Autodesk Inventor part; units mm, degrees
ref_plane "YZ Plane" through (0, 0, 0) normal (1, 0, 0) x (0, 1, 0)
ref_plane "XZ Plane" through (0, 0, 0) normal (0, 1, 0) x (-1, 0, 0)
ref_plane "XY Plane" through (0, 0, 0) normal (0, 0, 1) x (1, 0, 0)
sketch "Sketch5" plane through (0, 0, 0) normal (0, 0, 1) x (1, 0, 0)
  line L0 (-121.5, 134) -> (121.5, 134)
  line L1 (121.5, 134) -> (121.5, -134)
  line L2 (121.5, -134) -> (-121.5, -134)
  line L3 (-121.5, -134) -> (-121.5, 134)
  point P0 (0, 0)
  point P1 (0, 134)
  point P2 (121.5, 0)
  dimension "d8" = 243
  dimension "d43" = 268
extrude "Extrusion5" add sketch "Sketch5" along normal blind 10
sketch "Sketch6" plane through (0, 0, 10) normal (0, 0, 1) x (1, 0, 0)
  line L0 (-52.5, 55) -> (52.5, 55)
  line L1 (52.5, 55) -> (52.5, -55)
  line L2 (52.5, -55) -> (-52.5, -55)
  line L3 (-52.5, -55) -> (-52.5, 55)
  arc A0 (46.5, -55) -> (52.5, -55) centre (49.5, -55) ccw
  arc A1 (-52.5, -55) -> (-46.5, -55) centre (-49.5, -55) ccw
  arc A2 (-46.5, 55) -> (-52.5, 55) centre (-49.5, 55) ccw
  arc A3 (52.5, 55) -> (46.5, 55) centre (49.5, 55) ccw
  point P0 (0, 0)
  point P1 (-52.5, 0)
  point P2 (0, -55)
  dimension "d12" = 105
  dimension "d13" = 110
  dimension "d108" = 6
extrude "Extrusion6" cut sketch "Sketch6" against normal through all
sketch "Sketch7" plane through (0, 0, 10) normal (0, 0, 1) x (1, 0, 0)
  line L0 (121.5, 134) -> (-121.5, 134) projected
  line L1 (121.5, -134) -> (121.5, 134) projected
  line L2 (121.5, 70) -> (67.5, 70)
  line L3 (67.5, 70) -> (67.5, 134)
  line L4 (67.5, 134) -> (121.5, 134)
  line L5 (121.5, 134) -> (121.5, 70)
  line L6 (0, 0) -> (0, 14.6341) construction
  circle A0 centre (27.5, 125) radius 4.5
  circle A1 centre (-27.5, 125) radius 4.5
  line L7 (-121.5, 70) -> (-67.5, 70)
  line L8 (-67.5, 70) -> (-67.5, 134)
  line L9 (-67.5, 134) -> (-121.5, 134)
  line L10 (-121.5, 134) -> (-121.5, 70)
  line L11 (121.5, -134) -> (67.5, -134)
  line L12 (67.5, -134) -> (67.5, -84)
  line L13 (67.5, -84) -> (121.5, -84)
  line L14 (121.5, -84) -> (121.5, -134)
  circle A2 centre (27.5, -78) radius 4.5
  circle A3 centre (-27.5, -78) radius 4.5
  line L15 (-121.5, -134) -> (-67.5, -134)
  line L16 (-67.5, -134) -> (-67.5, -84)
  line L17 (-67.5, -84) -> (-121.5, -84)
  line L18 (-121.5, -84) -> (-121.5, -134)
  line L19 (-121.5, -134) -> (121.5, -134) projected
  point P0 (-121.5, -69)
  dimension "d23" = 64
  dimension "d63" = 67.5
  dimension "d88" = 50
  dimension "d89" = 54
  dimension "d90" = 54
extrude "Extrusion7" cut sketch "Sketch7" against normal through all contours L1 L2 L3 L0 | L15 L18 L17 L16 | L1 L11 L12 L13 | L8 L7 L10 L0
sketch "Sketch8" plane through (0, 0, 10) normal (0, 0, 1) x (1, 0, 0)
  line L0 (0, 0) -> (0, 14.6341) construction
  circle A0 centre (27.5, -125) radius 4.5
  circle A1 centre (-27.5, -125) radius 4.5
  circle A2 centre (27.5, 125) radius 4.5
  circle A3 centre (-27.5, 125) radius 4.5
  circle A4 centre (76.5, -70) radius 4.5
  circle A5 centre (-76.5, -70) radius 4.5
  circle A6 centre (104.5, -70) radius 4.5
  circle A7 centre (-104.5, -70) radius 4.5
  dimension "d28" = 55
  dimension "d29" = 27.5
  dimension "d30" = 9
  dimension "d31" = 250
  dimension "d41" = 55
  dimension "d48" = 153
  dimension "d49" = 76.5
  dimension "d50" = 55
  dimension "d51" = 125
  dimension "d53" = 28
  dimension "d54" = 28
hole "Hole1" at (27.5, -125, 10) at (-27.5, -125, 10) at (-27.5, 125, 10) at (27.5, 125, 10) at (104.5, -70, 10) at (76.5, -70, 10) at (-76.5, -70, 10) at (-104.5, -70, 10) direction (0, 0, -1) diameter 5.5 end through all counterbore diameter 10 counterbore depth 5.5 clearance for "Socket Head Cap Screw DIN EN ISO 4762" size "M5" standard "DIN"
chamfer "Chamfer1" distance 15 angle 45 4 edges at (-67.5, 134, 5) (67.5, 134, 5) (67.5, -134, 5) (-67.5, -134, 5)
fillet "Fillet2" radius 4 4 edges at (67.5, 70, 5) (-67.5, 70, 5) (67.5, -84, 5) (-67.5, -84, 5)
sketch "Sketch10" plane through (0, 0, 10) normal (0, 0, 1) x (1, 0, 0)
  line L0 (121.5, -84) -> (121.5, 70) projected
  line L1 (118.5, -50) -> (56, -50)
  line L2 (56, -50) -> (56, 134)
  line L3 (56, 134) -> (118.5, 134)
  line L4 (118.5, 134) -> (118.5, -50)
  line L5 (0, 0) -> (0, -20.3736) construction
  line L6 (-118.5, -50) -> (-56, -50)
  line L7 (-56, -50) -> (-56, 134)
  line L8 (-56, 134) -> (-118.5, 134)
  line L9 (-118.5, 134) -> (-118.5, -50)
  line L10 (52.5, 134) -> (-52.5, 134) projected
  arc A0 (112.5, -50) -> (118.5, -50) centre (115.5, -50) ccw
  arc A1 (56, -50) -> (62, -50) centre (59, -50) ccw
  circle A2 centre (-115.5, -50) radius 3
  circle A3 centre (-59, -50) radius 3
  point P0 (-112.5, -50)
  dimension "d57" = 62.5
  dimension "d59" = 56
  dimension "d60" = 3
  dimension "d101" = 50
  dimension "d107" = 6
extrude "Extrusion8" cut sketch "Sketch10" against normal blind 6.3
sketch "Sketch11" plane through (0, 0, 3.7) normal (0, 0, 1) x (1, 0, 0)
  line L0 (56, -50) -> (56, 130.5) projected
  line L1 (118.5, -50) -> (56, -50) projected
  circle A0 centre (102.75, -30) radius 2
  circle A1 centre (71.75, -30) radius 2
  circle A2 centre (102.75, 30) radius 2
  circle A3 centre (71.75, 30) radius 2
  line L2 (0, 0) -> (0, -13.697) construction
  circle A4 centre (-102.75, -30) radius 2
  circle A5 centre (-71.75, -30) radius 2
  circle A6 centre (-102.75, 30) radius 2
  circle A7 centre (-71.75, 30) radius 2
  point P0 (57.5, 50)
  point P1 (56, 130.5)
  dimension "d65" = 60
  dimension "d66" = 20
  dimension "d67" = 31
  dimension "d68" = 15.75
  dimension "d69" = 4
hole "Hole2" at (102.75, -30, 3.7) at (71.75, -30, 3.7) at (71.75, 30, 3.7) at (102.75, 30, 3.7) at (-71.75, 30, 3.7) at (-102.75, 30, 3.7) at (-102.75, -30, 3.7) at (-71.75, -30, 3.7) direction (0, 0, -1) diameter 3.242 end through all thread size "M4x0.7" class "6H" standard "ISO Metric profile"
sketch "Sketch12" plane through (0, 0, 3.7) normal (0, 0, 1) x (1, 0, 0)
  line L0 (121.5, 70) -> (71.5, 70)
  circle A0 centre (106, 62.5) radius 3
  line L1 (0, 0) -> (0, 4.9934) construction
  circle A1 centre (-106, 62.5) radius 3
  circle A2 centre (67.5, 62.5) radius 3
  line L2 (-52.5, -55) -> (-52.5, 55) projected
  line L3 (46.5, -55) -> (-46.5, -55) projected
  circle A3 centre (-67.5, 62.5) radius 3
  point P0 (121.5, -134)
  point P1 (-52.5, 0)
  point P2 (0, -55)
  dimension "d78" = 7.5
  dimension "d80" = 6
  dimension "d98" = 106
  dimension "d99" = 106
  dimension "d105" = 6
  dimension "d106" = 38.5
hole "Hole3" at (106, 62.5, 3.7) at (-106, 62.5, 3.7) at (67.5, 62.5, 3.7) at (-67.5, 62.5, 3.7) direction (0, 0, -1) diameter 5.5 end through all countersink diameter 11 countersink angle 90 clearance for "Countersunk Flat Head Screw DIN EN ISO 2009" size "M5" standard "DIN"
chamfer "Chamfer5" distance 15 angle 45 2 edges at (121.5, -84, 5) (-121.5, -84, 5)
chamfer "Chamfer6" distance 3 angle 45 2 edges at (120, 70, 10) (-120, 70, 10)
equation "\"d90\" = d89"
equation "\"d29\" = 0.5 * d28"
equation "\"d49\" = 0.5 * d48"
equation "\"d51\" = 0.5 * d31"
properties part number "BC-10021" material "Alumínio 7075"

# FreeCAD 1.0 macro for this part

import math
import FreeCAD as App
import Part
import Sketcher

V = App.Vector
Q = App.Units.Quantity


def edges_at(feature, points):
    """Names of the edges that pass closest to the given points."""
    edges = feature.Shape.Edges
    near = lambda p: min(range(len(edges)), key=lambda i: edges[i].distToShape(Part.Vertex(*p))[0])
    return sorted({f"Edge{near(p) + 1}" for p in points})


def add_polygon(sketch, points):
    """Adds a closed chain of lines whose ends are joined by coincident constraints."""
    first, n = sketch.GeometryCount, len(points)
    for a, b in zip(points, points[1:] + points[:1]):
        sketch.addGeometry(Part.LineSegment(App.Vector(*a, 0), App.Vector(*b, 0)), False)
    for i in range(n):
        sketch.addConstraint(Sketcher.Constraint("Coincident", first + i, 2, first + (i + 1) % n, 1))

doc = App.newDocument("Part")
body = doc.addObject("PartDesign::Body", "Body")

sketch1 = body.newObject("Sketcher::SketchObject", "Sketch")
sketch1.AttachmentSupport = (doc.getObject("XY_Plane"), [""])
sketch1.MapMode = "FlatFace"
add_polygon(sketch1, [(122, 134), (-122, 134), (-122, -134), (122, -134)])
sketch1.addConstraint(Sketcher.Constraint("Horizontal", 0))
sketch1.addConstraint(Sketcher.Constraint("Vertical", 1))
sketch1.addConstraint(Sketcher.Constraint("Horizontal", 2))
sketch1.addConstraint(Sketcher.Constraint("Vertical", 3))
sketch1.addConstraint(Sketcher.Constraint("Symmetric", 0, 2, 2, 2, -1, 1))
sketch1.addConstraint(Sketcher.Constraint("DistanceX", 0, 2, 0, 1, Q("243 mm")))
sketch1.addConstraint(Sketcher.Constraint("DistanceY", 1, 2, 1, 1, Q("268 mm")))
pad1 = body.newObject("PartDesign::Pad", "Pad")
pad1.Profile = sketch1
pad1.Length = 10

sketch2 = body.newObject("Sketcher::SketchObject", "Sketch001")
sketch2.AttachmentSupport = (doc.getObject("XY_Plane"), [""])
sketch2.MapMode = "FlatFace"
sketch2.AttachmentOffset = App.Placement(V(0, 0, 10), App.Rotation())
sketch2.addGeometry(Part.ArcOfCircle(Part.Circle(V(-49.5, 55, 0), V(0, 0, 1), 3), math.radians(0), math.radians(180)), False)
sketch2.addGeometry(Part.LineSegment(V(-52.5, 55, 0), V(-52.5, -55, 0)), False)
sketch2.addGeometry(Part.ArcOfCircle(Part.Circle(V(-49.5, -55, 0), V(0, 0, 1), 3), math.radians(180), math.radians(360)), False)
sketch2.addGeometry(Part.LineSegment(V(-46.5, -55, 0), V(46.5, -55, 0)), False)
sketch2.addGeometry(Part.ArcOfCircle(Part.Circle(V(49.5, -55, 0), V(0, 0, 1), 3), math.radians(180), math.radians(360)), False)
sketch2.addGeometry(Part.LineSegment(V(52.5, -55, 0), V(52.5, 55, 0)), False)
sketch2.addGeometry(Part.ArcOfCircle(Part.Circle(V(49.5, 55, 0), V(0, 0, 1), 3), math.radians(0), math.radians(180)), False)
sketch2.addGeometry(Part.LineSegment(V(46.5, 55, 0), V(-46.5, 55, 0)), False)
sketch2.addConstraint(Sketcher.Constraint("Tangent", 0, 2, 1, 1))
sketch2.addConstraint(Sketcher.Constraint("Tangent", 1, 2, 2, 1))
sketch2.addConstraint(Sketcher.Constraint("Coincident", 2, 2, 3, 1))
sketch2.addConstraint(Sketcher.Constraint("Coincident", 3, 2, 4, 1))
sketch2.addConstraint(Sketcher.Constraint("Tangent", 4, 2, 5, 1))
sketch2.addConstraint(Sketcher.Constraint("Tangent", 5, 2, 6, 1))
sketch2.addConstraint(Sketcher.Constraint("Coincident", 6, 2, 7, 1))
sketch2.addConstraint(Sketcher.Constraint("Coincident", 7, 2, 0, 1))
sketch2.addConstraint(Sketcher.Constraint("Vertical", 1))
sketch2.addConstraint(Sketcher.Constraint("Horizontal", 3))
sketch2.addConstraint(Sketcher.Constraint("Vertical", 5))
sketch2.addConstraint(Sketcher.Constraint("Horizontal", 7))
sketch2.addConstraint(Sketcher.Constraint("Equal", 0, 2))
sketch2.addConstraint(Sketcher.Constraint("Equal", 2, 4))
sketch2.addConstraint(Sketcher.Constraint("Equal", 4, 6))
sketch2.addConstraint(Sketcher.Constraint("Symmetric", 0, 3, 4, 3, -1, 1))
sketch2.addConstraint(Sketcher.Constraint("Horizontal", 2, 3, 4, 3))
sketch2.addConstraint(Sketcher.Constraint("Horizontal", 0, 3, 6, 3))
sketch2.addConstraint(Sketcher.Constraint("Horizontal", 1, 2, 2, 2))
sketch2.addConstraint(Sketcher.Constraint("Horizontal", 5, 2, 6, 2))
sketch2.addConstraint(Sketcher.Constraint("Radius", 0, Q("3 mm")))
sketch2.addConstraint(Sketcher.Constraint("DistanceY", 1, 2, 1, 1, Q("110 mm")))
sketch2.addConstraint(Sketcher.Constraint("DistanceX", 1, 2, 4, 2, Q("105 mm")))
pocket1 = body.newObject("PartDesign::Pocket", "Pocket")
pocket1.Profile = sketch2
pocket1.Type = "ThroughAll"

sketch3 = body.newObject("Sketcher::SketchObject", "Sketch002")
sketch3.AttachmentSupport = (doc.getObject("XY_Plane"), [""])
sketch3.MapMode = "FlatFace"
sketch3.AttachmentOffset = App.Placement(V(0, 0, 10), App.Rotation())
add_polygon(sketch3, [(122, 70), (122, 134), (68, 134), (68, 70)])
add_polygon(sketch3, [(-122, -134), (-68, -134), (-68, -84), (-122, -84)])
add_polygon(sketch3, [(122, -134), (122, -84), (68, -84), (68, -134)])
add_polygon(sketch3, [(-68, 70), (-68, 134), (-122, 134), (-122, 70)])
sketch3.addConstraint(Sketcher.Constraint("Vertical", 0))
sketch3.addConstraint(Sketcher.Constraint("Horizontal", 1))
sketch3.addConstraint(Sketcher.Constraint("Vertical", 2))
sketch3.addConstraint(Sketcher.Constraint("Horizontal", 3))
sketch3.addConstraint(Sketcher.Constraint("Horizontal", 4))
sketch3.addConstraint(Sketcher.Constraint("Vertical", 5))
sketch3.addConstraint(Sketcher.Constraint("Horizontal", 6))
sketch3.addConstraint(Sketcher.Constraint("Vertical", 7))
sketch3.addConstraint(Sketcher.Constraint("Vertical", 8))
sketch3.addConstraint(Sketcher.Constraint("Horizontal", 9))
sketch3.addConstraint(Sketcher.Constraint("Vertical", 10))
sketch3.addConstraint(Sketcher.Constraint("Horizontal", 11))
sketch3.addConstraint(Sketcher.Constraint("Vertical", 12))
sketch3.addConstraint(Sketcher.Constraint("Horizontal", 13))
sketch3.addConstraint(Sketcher.Constraint("Vertical", 14))
sketch3.addConstraint(Sketcher.Constraint("Horizontal", 15))
sketch3.addConstraint(Sketcher.Constraint("Symmetric", 1, 2, 4, 2, -1, 1))
sketch3.addConstraint(Sketcher.Constraint("Symmetric", 10, 2, 12, 2, -1, 1))
sketch3.addConstraint(Sketcher.Constraint("Symmetric", 6, 2, 8, 2, -2))
sketch3.addConstraint(Sketcher.Constraint("Symmetric", 4, 2, 10, 2, -2))
sketch3.addConstraint(Sketcher.Constraint("Symmetric", 3, 2, 14, 2, -2))
sketch3.addConstraint(Sketcher.Constraint("Vertical", 3, 2, 8, 2))
sketch3.addConstraint(Sketcher.Constraint("DistanceX", 1, 2, 1, 1, Q("54 mm")))
sketch3.addConstraint(Sketcher.Constraint("DistanceY", 0, 1, 0, 2, Q("64 mm")))
sketch3.addConstraint(Sketcher.Constraint("DistanceY", 5, 1, 5, 2, Q("50 mm")))
sketch3.addConstraint(Sketcher.Constraint("DistanceX", -1, 1, 1, 2, Q("67.5 mm")))
sketch3.addConstraint(Sketcher.Constraint("DistanceY", -1, 1, 0, 2, Q("134 mm")))
pocket2 = body.newObject("PartDesign::Pocket", "Pocket001")
pocket2.Profile = sketch3
pocket2.Type = "ThroughAll"

sketch4 = body.newObject("Sketcher::SketchObject", "Sketch003")
sketch4.AttachmentSupport = (doc.getObject("XY_Plane"), [""])
sketch4.MapMode = "FlatFace"
sketch4.AttachmentOffset = App.Placement(V(0, 0, 10), App.Rotation())
sketch4.addGeometry(Part.Circle(V(27.5, -125, 0), V(0, 0, 1), 2.8), False)
sketch4.addGeometry(Part.Circle(V(-27.5, -125, 0), V(0, 0, 1), 2.8), False)
sketch4.addGeometry(Part.Circle(V(-27.5, 125, 0), V(0, 0, 1), 2.8), False)
sketch4.addGeometry(Part.Circle(V(27.5, 125, 0), V(0, 0, 1), 2.8), False)
sketch4.addGeometry(Part.Circle(V(104.5, -70, 0), V(0, 0, 1), 2.8), False)
sketch4.addGeometry(Part.Circle(V(76.5, -70, 0), V(0, 0, 1), 2.8), False)
sketch4.addGeometry(Part.Circle(V(-76.5, -70, 0), V(0, 0, 1), 2.8), False)
sketch4.addGeometry(Part.Circle(V(-104.5, -70, 0), V(0, 0, 1), 2.8), False)
sketch4.addConstraint(Sketcher.Constraint("Equal", 0, 1))
sketch4.addConstraint(Sketcher.Constraint("Equal", 1, 2))
sketch4.addConstraint(Sketcher.Constraint("Equal", 2, 3))
sketch4.addConstraint(Sketcher.Constraint("Equal", 3, 4))
sketch4.addConstraint(Sketcher.Constraint("Equal", 4, 5))
sketch4.addConstraint(Sketcher.Constraint("Equal", 5, 6))
sketch4.addConstraint(Sketcher.Constraint("Equal", 6, 7))
sketch4.addConstraint(Sketcher.Constraint("Symmetric", 0, 3, 2, 3, -1, 1))
sketch4.addConstraint(Sketcher.Constraint("Symmetric", 1, 3, 3, 3, -1, 1))
sketch4.addConstraint(Sketcher.Constraint("Symmetric", 0, 3, 1, 3, -2))
sketch4.addConstraint(Sketcher.Constraint("Symmetric", 5, 3, 6, 3, -2))
sketch4.addConstraint(Sketcher.Constraint("Symmetric", 4, 3, 7, 3, -2))
sketch4.addConstraint(Sketcher.Constraint("Horizontal", 4, 3, 5, 3))
sketch4.addConstraint(Sketcher.Constraint("Diameter", 0, Q("5.5 mm")))
sketch4.addConstraint(Sketcher.Constraint("DistanceY", 0, 3, -1, 1, Q("125 mm")))
sketch4.addConstraint(Sketcher.Constraint("DistanceY", 4, 3, -1, 1, Q("70 mm")))
sketch4.addConstraint(Sketcher.Constraint("DistanceX", 1, 3, 0, 3, Q("55 mm")))
sketch4.addConstraint(Sketcher.Constraint("DistanceX", 0, 3, 4, 3, Q("77 mm")))
sketch4.addConstraint(Sketcher.Constraint("DistanceX", 5, 3, 4, 3, Q("28 mm")))
doc.recompute()
hole = body.newObject("PartDesign::Hole", "Hole")
hole.Profile = sketch4
hole.ThreadType = "None"
hole.Diameter = 5.5
hole.DepthType = "ThroughAll"
hole.HoleCutType = "Counterbore"
hole.HoleCutDiameter = 10
hole.HoleCutDepth = 5.5
doc.recompute()

chamfer = body.newObject("PartDesign::Chamfer", "Chamfer")
chamfer.Base = (hole, edges_at(hole, [
    (-67.5, 134, 5),
    (67.5, 134, 5),
    (67.5, -134, 5),
    (-67.5, -134, 5),
]))
chamfer.Size = 15
doc.recompute()

fillet = body.newObject("PartDesign::Fillet", "Fillet")
fillet.Base = (chamfer, edges_at(chamfer, [
    (67.5, 70, 5),
    (-67.5, 70, 5),
    (67.5, -84, 5),
    (-67.5, -84, 5),
]))
fillet.Radius = 4

sketch5 = body.newObject("Sketcher::SketchObject", "Sketch004")
sketch5.AttachmentSupport = (doc.getObject("XY_Plane"), [""])
sketch5.MapMode = "FlatFace"
sketch5.AttachmentOffset = App.Placement(V(0, 0, 10), App.Rotation())
sketch5.addGeometry(Part.ArcOfCircle(Part.Circle(V(115.5, -50, 0), V(0, 0, 1), 3), math.radians(180), math.radians(360)), False)
sketch5.addGeometry(Part.LineSegment(V(118.5, -50, 0), V(118.5, 134, 0)), False)
sketch5.addGeometry(Part.LineSegment(V(118.5, 134, 0), V(56, 134, 0)), False)
sketch5.addGeometry(Part.LineSegment(V(56, 134, 0), V(56, -50, 0)), False)
sketch5.addGeometry(Part.ArcOfCircle(Part.Circle(V(59, -50, 0), V(0, 0, 1), 3), math.radians(180), math.radians(360)), False)
sketch5.addGeometry(Part.LineSegment(V(62, -50, 0), V(112.5, -50, 0)), False)
sketch5.addGeometry(Part.LineSegment(V(-118.5, 134, 0), V(-118.5, -50, 0)), False)
sketch5.addGeometry(Part.ArcOfCircle(Part.Circle(V(-115.5, -50, 0), V(0, 0, 1), 3), math.radians(180), math.radians(360)), False)
sketch5.addGeometry(Part.LineSegment(V(-112.5, -50, 0), V(-62, -50, 0)), False)
sketch5.addGeometry(Part.ArcOfCircle(Part.Circle(V(-59, -50, 0), V(0, 0, 1), 3), math.radians(180), math.radians(360)), False)
sketch5.addGeometry(Part.LineSegment(V(-56, -50, 0), V(-56, 134, 0)), False)
sketch5.addGeometry(Part.LineSegment(V(-56, 134, 0), V(-118.5, 134, 0)), False)
sketch5.addConstraint(Sketcher.Constraint("Tangent", 0, 2, 1, 1))
sketch5.addConstraint(Sketcher.Constraint("Coincident", 1, 2, 2, 1))
sketch5.addConstraint(Sketcher.Constraint("Coincident", 2, 2, 3, 1))
sketch5.addConstraint(Sketcher.Constraint("Tangent", 3, 2, 4, 1))
sketch5.addConstraint(Sketcher.Constraint("Coincident", 4, 2, 5, 1))
sketch5.addConstraint(Sketcher.Constraint("Coincident", 5, 2, 0, 1))
sketch5.addConstraint(Sketcher.Constraint("Tangent", 6, 2, 7, 1))
sketch5.addConstraint(Sketcher.Constraint("Coincident", 7, 2, 8, 1))
sketch5.addConstraint(Sketcher.Constraint("Coincident", 8, 2, 9, 1))
sketch5.addConstraint(Sketcher.Constraint("Tangent", 9, 2, 10, 1))
sketch5.addConstraint(Sketcher.Constraint("Coincident", 10, 2, 11, 1))
sketch5.addConstraint(Sketcher.Constraint("Coincident", 11, 2, 6, 1))
sketch5.addConstraint(Sketcher.Constraint("Vertical", 1))
sketch5.addConstraint(Sketcher.Constraint("Horizontal", 2))
sketch5.addConstraint(Sketcher.Constraint("Vertical", 3))
sketch5.addConstraint(Sketcher.Constraint("Horizontal", 5))
sketch5.addConstraint(Sketcher.Constraint("Vertical", 6))
sketch5.addConstraint(Sketcher.Constraint("Horizontal", 8))
sketch5.addConstraint(Sketcher.Constraint("Vertical", 10))
sketch5.addConstraint(Sketcher.Constraint("Horizontal", 11))
sketch5.addConstraint(Sketcher.Constraint("Equal", 0, 4))
sketch5.addConstraint(Sketcher.Constraint("Equal", 4, 7))
sketch5.addConstraint(Sketcher.Constraint("Equal", 7, 9))
sketch5.addConstraint(Sketcher.Constraint("Symmetric", 0, 3, 7, 3, -2))
sketch5.addConstraint(Sketcher.Constraint("Symmetric", 4, 3, 9, 3, -2))
sketch5.addConstraint(Sketcher.Constraint("Horizontal", 0, 3, 4, 3))
sketch5.addConstraint(Sketcher.Constraint("Horizontal", 3, 2, 4, 2))
sketch5.addConstraint(Sketcher.Constraint("Horizontal", 6, 2, 7, 2))
sketch5.addConstraint(Sketcher.Constraint("Horizontal", 2, 2, 10, 2))
sketch5.addConstraint(Sketcher.Constraint("Radius", 0, Q("3 mm")))
sketch5.addConstraint(Sketcher.Constraint("DistanceX", 2, 2, 2, 1, Q("62.5 mm")))
sketch5.addConstraint(Sketcher.Constraint("DistanceY", 0, 3, -1, 1, Q("50 mm")))
sketch5.addConstraint(Sketcher.Constraint("DistanceX", -1, 1, 2, 2, Q("56 mm")))
sketch5.addConstraint(Sketcher.Constraint("DistanceY", 1, 1, 1, 2, Q("184 mm")))
pocket3 = body.newObject("PartDesign::Pocket", "Pocket002")
pocket3.Profile = sketch5
pocket3.Length = 6.3

sketch6 = body.newObject("Sketcher::SketchObject", "Sketch005")
sketch6.AttachmentSupport = (doc.getObject("XY_Plane"), [""])
sketch6.MapMode = "FlatFace"
sketch6.AttachmentOffset = App.Placement(V(0, 0, 3.7), App.Rotation())
sketch6.addGeometry(Part.Circle(V(102.8, -30, 0), V(0, 0, 1), 1.6), False)
sketch6.addGeometry(Part.Circle(V(71.8, -30, 0), V(0, 0, 1), 1.6), False)
sketch6.addGeometry(Part.Circle(V(71.8, 30, 0), V(0, 0, 1), 1.6), False)
sketch6.addGeometry(Part.Circle(V(102.8, 30, 0), V(0, 0, 1), 1.6), False)
sketch6.addGeometry(Part.Circle(V(-71.8, 30, 0), V(0, 0, 1), 1.6), False)
sketch6.addGeometry(Part.Circle(V(-102.8, 30, 0), V(0, 0, 1), 1.6), False)
sketch6.addGeometry(Part.Circle(V(-102.8, -30, 0), V(0, 0, 1), 1.6), False)
sketch6.addGeometry(Part.Circle(V(-71.8, -30, 0), V(0, 0, 1), 1.6), False)
sketch6.addConstraint(Sketcher.Constraint("Equal", 0, 1))
sketch6.addConstraint(Sketcher.Constraint("Equal", 1, 2))
sketch6.addConstraint(Sketcher.Constraint("Equal", 2, 3))
sketch6.addConstraint(Sketcher.Constraint("Equal", 3, 4))
sketch6.addConstraint(Sketcher.Constraint("Equal", 4, 5))
sketch6.addConstraint(Sketcher.Constraint("Equal", 5, 6))
sketch6.addConstraint(Sketcher.Constraint("Equal", 6, 7))
sketch6.addConstraint(Sketcher.Constraint("Symmetric", 1, 3, 4, 3, -1, 1))
sketch6.addConstraint(Sketcher.Constraint("Symmetric", 0, 3, 5, 3, -1, 1))
sketch6.addConstraint(Sketcher.Constraint("Symmetric", 3, 3, 6, 3, -1, 1))
sketch6.addConstraint(Sketcher.Constraint("Symmetric", 2, 3, 7, 3, -1, 1))
sketch6.addConstraint(Sketcher.Constraint("Symmetric", 2, 3, 4, 3, -2))
sketch6.addConstraint(Sketcher.Constraint("Symmetric", 3, 3, 5, 3, -2))
sketch6.addConstraint(Sketcher.Constraint("Horizontal", 0, 3, 1, 3))
sketch6.addConstraint(Sketcher.Constraint("Diameter", 0, Q("3.242 mm")))
sketch6.addConstraint(Sketcher.Constraint("DistanceY", 0, 3, -1, 1, Q("30 mm")))
sketch6.addConstraint(Sketcher.Constraint("DistanceX", 1, 3, 0, 3, Q("31 mm")))
sketch6.addConstraint(Sketcher.Constraint("DistanceX", 4, 3, 2, 3, Q("143.5 mm")))
doc.recompute()
hole2 = body.newObject("PartDesign::Hole", "Hole001")
hole2.Profile = sketch6
hole2.ThreadType = "None"
hole2.Diameter = 3.242
hole2.DepthType = "ThroughAll"

sketch7 = body.newObject("Sketcher::SketchObject", "Sketch006")
sketch7.AttachmentSupport = (doc.getObject("XY_Plane"), [""])
sketch7.MapMode = "FlatFace"
sketch7.AttachmentOffset = App.Placement(V(0, 0, 3.7), App.Rotation())
sketch7.addGeometry(Part.Circle(V(106, 62.5, 0), V(0, 0, 1), 2.8), False)
sketch7.addGeometry(Part.Circle(V(-106, 62.5, 0), V(0, 0, 1), 2.8), False)
sketch7.addGeometry(Part.Circle(V(67.5, 62.5, 0), V(0, 0, 1), 2.8), False)
sketch7.addGeometry(Part.Circle(V(-67.5, 62.5, 0), V(0, 0, 1), 2.8), False)
sketch7.addConstraint(Sketcher.Constraint("Equal", 0, 1))
sketch7.addConstraint(Sketcher.Constraint("Equal", 1, 2))
sketch7.addConstraint(Sketcher.Constraint("Equal", 2, 3))
sketch7.addConstraint(Sketcher.Constraint("Symmetric", 0, 3, 1, 3, -2))
sketch7.addConstraint(Sketcher.Constraint("Symmetric", 2, 3, 3, 3, -2))
sketch7.addConstraint(Sketcher.Constraint("Horizontal", 1, 3, 2, 3))
sketch7.addConstraint(Sketcher.Constraint("Diameter", 0, Q("5.5 mm")))
sketch7.addConstraint(Sketcher.Constraint("DistanceX", -1, 1, 0, 3, Q("106 mm")))
sketch7.addConstraint(Sketcher.Constraint("DistanceX", 3, 3, 2, 3, Q("135 mm")))
sketch7.addConstraint(Sketcher.Constraint("DistanceY", -1, 1, 0, 3, Q("62.5 mm")))
doc.recompute()
hole3 = body.newObject("PartDesign::Hole", "Hole002")
hole3.Profile = sketch7
hole3.ThreadType = "None"
hole3.Diameter = 5.5
hole3.DepthType = "ThroughAll"
hole3.HoleCutType = "Countersink"
hole3.HoleCutDiameter = 11
hole3.HoleCutCountersinkAngle = 90
doc.recompute()

chamfer2 = body.newObject("PartDesign::Chamfer", "Chamfer001")
chamfer2.Base = (hole3, edges_at(hole3, [(121.5, -84, 5), (-121.5, -84, 5)]))
chamfer2.Size = 15
doc.recompute()

chamfer3 = body.newObject("PartDesign::Chamfer", "Chamfer002")
chamfer3.Base = (chamfer2, edges_at(chamfer2, [(120, 70, 10), (-120, 70, 10)]))
chamfer3.Size = 3

doc.recompute()
